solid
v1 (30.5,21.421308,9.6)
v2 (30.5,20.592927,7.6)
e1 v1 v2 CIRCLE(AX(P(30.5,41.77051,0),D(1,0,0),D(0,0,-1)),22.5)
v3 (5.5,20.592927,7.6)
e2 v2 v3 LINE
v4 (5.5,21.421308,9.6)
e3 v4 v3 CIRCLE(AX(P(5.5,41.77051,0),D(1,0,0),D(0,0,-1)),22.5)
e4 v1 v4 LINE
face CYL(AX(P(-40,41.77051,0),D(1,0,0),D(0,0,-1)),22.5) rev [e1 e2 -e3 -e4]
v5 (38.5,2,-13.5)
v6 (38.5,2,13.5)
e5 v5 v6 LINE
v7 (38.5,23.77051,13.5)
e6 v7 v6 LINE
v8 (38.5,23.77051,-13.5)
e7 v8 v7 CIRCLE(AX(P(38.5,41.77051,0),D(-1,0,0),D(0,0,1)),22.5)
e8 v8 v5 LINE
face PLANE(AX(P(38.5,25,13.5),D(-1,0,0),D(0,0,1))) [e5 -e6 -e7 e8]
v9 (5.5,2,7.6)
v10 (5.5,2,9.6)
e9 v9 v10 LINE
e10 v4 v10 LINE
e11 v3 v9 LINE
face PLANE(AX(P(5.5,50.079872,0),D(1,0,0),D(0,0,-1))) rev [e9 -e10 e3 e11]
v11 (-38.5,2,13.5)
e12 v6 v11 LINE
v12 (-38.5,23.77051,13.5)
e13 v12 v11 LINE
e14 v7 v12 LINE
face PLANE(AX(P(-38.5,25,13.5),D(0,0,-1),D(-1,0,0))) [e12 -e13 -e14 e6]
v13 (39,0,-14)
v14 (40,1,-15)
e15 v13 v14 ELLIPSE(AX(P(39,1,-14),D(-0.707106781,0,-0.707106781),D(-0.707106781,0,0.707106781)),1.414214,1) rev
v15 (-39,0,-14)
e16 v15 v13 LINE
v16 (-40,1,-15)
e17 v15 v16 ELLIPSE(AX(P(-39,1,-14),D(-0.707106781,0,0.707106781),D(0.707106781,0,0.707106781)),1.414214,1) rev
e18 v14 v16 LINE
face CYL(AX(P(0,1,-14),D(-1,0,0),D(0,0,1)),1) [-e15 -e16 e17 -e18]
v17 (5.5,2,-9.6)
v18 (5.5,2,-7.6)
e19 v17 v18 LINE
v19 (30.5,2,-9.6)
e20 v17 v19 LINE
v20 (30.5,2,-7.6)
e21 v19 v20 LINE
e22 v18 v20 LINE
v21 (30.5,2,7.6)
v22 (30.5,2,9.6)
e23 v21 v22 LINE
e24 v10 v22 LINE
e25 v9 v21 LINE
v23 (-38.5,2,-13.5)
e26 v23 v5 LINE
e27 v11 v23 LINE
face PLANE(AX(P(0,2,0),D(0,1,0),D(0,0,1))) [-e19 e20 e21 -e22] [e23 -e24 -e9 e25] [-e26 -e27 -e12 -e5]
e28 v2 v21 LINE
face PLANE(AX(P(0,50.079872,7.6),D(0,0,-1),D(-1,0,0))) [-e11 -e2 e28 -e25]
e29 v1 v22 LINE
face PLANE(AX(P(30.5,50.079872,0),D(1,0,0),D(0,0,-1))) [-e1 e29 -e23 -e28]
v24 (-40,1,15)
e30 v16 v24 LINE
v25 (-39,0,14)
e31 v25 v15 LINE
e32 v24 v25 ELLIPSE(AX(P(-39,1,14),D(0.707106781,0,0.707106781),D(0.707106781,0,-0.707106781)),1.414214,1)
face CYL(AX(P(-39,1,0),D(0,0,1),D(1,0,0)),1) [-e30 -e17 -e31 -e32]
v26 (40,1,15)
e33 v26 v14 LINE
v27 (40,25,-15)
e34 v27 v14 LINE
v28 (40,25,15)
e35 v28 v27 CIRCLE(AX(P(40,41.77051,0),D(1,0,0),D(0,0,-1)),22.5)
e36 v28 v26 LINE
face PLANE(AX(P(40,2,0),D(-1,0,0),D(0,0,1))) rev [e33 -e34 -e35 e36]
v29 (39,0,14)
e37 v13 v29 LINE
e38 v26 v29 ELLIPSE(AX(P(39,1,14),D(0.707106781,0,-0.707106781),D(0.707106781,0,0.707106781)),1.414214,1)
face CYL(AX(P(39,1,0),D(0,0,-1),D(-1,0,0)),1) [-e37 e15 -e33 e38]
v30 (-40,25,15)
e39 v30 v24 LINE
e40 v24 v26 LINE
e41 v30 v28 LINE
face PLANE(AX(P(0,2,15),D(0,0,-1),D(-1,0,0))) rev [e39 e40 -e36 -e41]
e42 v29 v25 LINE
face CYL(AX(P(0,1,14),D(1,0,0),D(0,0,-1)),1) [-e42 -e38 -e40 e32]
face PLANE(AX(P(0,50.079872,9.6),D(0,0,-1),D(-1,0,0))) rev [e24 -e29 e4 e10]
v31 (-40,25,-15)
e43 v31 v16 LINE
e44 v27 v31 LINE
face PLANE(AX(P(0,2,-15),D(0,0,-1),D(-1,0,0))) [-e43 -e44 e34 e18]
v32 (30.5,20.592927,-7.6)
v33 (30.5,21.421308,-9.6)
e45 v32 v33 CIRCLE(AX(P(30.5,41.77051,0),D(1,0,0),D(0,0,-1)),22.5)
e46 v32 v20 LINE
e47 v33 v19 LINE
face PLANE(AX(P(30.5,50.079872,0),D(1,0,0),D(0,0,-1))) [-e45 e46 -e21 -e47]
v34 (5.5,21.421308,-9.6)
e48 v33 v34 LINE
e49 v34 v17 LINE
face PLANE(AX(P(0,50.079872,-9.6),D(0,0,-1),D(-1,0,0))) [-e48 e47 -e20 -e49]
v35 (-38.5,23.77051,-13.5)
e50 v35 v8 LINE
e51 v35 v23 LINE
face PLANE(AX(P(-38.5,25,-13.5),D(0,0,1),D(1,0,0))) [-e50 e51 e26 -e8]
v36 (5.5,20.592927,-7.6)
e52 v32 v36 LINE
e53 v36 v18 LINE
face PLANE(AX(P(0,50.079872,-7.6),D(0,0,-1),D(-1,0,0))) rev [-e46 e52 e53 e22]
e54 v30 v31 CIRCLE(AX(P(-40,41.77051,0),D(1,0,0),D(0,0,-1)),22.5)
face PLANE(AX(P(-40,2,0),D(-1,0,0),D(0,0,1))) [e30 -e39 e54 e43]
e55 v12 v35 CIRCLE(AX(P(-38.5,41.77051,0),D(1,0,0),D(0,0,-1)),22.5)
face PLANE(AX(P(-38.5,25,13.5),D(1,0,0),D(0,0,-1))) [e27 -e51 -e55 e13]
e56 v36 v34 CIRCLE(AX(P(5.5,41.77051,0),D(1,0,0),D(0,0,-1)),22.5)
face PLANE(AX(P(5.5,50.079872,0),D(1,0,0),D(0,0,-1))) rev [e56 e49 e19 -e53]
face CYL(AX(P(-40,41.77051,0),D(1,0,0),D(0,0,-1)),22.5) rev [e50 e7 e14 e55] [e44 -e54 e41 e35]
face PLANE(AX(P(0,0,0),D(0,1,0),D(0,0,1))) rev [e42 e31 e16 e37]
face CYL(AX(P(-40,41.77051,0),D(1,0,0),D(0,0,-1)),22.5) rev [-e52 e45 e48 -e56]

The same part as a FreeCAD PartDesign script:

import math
import FreeCAD as App
import Part
import Sketcher

V = App.Vector
Q = App.Units.Quantity


def edges_at(feature, points):
    """Names of the edges that pass closest to the given points."""
    edges = feature.Shape.Edges
    near = lambda p: min(range(len(edges)), key=lambda i: edges[i].distToShape(Part.Vertex(*p))[0])
    return sorted({f"Edge{near(p) + 1}" for p in points})


def add_polygon(sketch, points):
    """Adds a closed chain of lines whose ends are joined by coincident constraints."""
    first, n = sketch.GeometryCount, len(points)
    for a, b in zip(points, points[1:] + points[:1]):
        sketch.addGeometry(Part.LineSegment(App.Vector(*a, 0), App.Vector(*b, 0)), False)
    for i in range(n):
        sketch.addConstraint(Sketcher.Constraint("Coincident", first + i, 2, first + (i + 1) % n, 1))

doc = App.newDocument("Part")
body = doc.addObject("PartDesign::Body", "Body")

# Sketch on XZ plane
sketch1 = body.newObject("Sketcher::SketchObject", "Sketch")
sketch1.AttachmentSupport = (doc.getObject("XZ_Plane"), [""])
sketch1.MapMode = "FlatFace"
add_polygon(sketch1, [(-40, -15), (-40, 15), (40, 15), (40, -15)])  # lines 0-3
sketch1.addConstraint(Sketcher.Constraint("Vertical", 0))
sketch1.addConstraint(Sketcher.Constraint("Horizontal", 1))
sketch1.addConstraint(Sketcher.Constraint("Vertical", 2))
sketch1.addConstraint(Sketcher.Constraint("Horizontal", 3))
sketch1.addConstraint(Sketcher.Constraint("Symmetric", 0, 2, 2, 2, -1, 1))
sketch1.addConstraint(Sketcher.Constraint("DistanceX", 1, 1, 1, 2, Q("80 mm")))
sketch1.addConstraint(Sketcher.Constraint("DistanceY", 0, 1, 0, 2, Q("30 mm")))
pad1 = body.newObject("PartDesign::Pad", "Pad")
pad1.Profile = sketch1
pad1.Length = 2
pad1.Reversed = True

# Sketch on XZ plane
sketch2 = body.newObject("Sketcher::SketchObject", "Sketch001")
sketch2.AttachmentSupport = (doc.getObject("XZ_Plane"), [""])
sketch2.MapMode = "FlatFace"
add_polygon(sketch2, [(-40, -15), (-40, 15), (40, 15), (40, -15)])  # lines 0-3
add_polygon(sketch2, [(38, 14), (-38, 14), (-38, -14), (38, -14)])  # lines 4-7
sketch2.addConstraint(Sketcher.Constraint("Vertical", 0))
sketch2.addConstraint(Sketcher.Constraint("Horizontal", 1))
sketch2.addConstraint(Sketcher.Constraint("Vertical", 2))
sketch2.addConstraint(Sketcher.Constraint("Horizontal", 3))
sketch2.addConstraint(Sketcher.Constraint("Horizontal", 4))
sketch2.addConstraint(Sketcher.Constraint("Vertical", 5))
sketch2.addConstraint(Sketcher.Constraint("Horizontal", 6))
sketch2.addConstraint(Sketcher.Constraint("Vertical", 7))
sketch2.addConstraint(Sketcher.Constraint("Symmetric", 0, 2, 2, 2, -1, 1))
sketch2.addConstraint(Sketcher.Constraint("Symmetric", 4, 2, 6, 2, -1, 1))
sketch2.addConstraint(Sketcher.Constraint("DistanceX", 1, 1, 1, 2, Q("80 mm")))
sketch2.addConstraint(Sketcher.Constraint("DistanceX", 4, 2, 4, 1, Q("77 mm")))
sketch2.addConstraint(Sketcher.Constraint("DistanceY", 0, 1, 0, 2, Q("30 mm")))
sketch2.addConstraint(Sketcher.Constraint("DistanceY", 5, 2, 5, 1, Q("27 mm")))
pad2 = body.newObject("PartDesign::Pad", "Pad001")
pad2.Profile = sketch2
pad2.Length = 25
pad2.Reversed = True

# Sketch on XZ plane
sketch3 = body.newObject("Sketcher::SketchObject", "Sketch002")
sketch3.AttachmentSupport = (doc.getObject("XZ_Plane"), [""])
sketch3.MapMode = "FlatFace"
sketch3.AttachmentOffset = App.Placement(V(0, 0, -2), App.Rotation())
add_polygon(sketch3, [(5.5, -9.6), (5.5, -7.6), (30.5, -7.6), (30.5, -9.6)])  # lines 0-3
add_polygon(sketch3, [(5.5, 7.6), (5.5, 9.6), (30.5, 9.6), (30.5, 7.6)])  # lines 4-7
sketch3.addConstraint(Sketcher.Constraint("Vertical", 0))
sketch3.addConstraint(Sketcher.Constraint("Horizontal", 1))
sketch3.addConstraint(Sketcher.Constraint("Vertical", 2))
sketch3.addConstraint(Sketcher.Constraint("Horizontal", 3))
sketch3.addConstraint(Sketcher.Constraint("Vertical", 4))
sketch3.addConstraint(Sketcher.Constraint("Horizontal", 5))
sketch3.addConstraint(Sketcher.Constraint("Vertical", 6))
sketch3.addConstraint(Sketcher.Constraint("Horizontal", 7))
sketch3.addConstraint(Sketcher.Constraint("Symmetric", 3, 2, 4, 2, -1))
sketch3.addConstraint(Sketcher.Constraint("Symmetric", 1, 2, 6, 2, -1))
sketch3.addConstraint(Sketcher.Constraint("DistanceX", 1, 1, 1, 2, Q("25 mm")))
sketch3.addConstraint(Sketcher.Constraint("DistanceY", 0, 1, 0, 2, Q("2 mm")))
sketch3.addConstraint(Sketcher.Constraint("DistanceX", -1, 1, 0, 2, Q("5.5 mm")))
sketch3.addConstraint(Sketcher.Constraint("DistanceY", 0, 2, -1, 1, Q("7.6 mm")))
pad3 = body.newObject("PartDesign::Pad", "Pad002")
pad3.Profile = sketch3
pad3.Length = 23
pad3.Reversed = True

# Sketch on YZ plane
sketch4 = body.newObject("Sketcher::SketchObject", "Sketch003")
sketch4.AttachmentSupport = (doc.getObject("YZ_Plane"), [""])
sketch4.MapMode = "FlatFace"
sketch4.AttachmentOffset = App.Placement(V(0, 0, 40), App.Rotation())
sketch4.addGeometry(Part.LineSegment(V(25, -15, 0), V(25, 15, 0)), False)
sketch4.addGeometry(Part.ArcOfCircle(Part.Circle(V(42, 0, 0), V(0, 0, 1), 22), math.radians(138), math.radians(222)), False)
sketch4.addConstraint(Sketcher.Constraint("Coincident", 0, 1, 1, 2))
sketch4.addConstraint(Sketcher.Constraint("Coincident", 1, 1, 0, 2))
sketch4.addConstraint(Sketcher.Constraint("Vertical", 0))
sketch4.addConstraint(Sketcher.Constraint("PointOnObject", 1, 3, -1))
sketch4.addConstraint(Sketcher.Constraint("Radius", 1, Q("22.5 mm")))
sketch4.addConstraint(Sketcher.Constraint("DistanceY", 0, 1, 0, 2, Q("30 mm")))
sketch4.addConstraint(Sketcher.Constraint("DistanceX", -1, 1, 0, 1, Q("25 mm")))
pocket1 = body.newObject("PartDesign::Pocket", "Pocket")
pocket1.Profile = sketch4
pocket1.Type = "ThroughAll"
doc.recompute()

fillet = body.newObject("PartDesign::Fillet", "Fillet")
fillet.Base = (pocket1, edges_at(pocket1, [
    (-40, 0, 0),
    (0, 0, -15),
    (40, 0, 0),
    (0, 0, 15),
]))
fillet.Radius = 1

doc.recompute()
